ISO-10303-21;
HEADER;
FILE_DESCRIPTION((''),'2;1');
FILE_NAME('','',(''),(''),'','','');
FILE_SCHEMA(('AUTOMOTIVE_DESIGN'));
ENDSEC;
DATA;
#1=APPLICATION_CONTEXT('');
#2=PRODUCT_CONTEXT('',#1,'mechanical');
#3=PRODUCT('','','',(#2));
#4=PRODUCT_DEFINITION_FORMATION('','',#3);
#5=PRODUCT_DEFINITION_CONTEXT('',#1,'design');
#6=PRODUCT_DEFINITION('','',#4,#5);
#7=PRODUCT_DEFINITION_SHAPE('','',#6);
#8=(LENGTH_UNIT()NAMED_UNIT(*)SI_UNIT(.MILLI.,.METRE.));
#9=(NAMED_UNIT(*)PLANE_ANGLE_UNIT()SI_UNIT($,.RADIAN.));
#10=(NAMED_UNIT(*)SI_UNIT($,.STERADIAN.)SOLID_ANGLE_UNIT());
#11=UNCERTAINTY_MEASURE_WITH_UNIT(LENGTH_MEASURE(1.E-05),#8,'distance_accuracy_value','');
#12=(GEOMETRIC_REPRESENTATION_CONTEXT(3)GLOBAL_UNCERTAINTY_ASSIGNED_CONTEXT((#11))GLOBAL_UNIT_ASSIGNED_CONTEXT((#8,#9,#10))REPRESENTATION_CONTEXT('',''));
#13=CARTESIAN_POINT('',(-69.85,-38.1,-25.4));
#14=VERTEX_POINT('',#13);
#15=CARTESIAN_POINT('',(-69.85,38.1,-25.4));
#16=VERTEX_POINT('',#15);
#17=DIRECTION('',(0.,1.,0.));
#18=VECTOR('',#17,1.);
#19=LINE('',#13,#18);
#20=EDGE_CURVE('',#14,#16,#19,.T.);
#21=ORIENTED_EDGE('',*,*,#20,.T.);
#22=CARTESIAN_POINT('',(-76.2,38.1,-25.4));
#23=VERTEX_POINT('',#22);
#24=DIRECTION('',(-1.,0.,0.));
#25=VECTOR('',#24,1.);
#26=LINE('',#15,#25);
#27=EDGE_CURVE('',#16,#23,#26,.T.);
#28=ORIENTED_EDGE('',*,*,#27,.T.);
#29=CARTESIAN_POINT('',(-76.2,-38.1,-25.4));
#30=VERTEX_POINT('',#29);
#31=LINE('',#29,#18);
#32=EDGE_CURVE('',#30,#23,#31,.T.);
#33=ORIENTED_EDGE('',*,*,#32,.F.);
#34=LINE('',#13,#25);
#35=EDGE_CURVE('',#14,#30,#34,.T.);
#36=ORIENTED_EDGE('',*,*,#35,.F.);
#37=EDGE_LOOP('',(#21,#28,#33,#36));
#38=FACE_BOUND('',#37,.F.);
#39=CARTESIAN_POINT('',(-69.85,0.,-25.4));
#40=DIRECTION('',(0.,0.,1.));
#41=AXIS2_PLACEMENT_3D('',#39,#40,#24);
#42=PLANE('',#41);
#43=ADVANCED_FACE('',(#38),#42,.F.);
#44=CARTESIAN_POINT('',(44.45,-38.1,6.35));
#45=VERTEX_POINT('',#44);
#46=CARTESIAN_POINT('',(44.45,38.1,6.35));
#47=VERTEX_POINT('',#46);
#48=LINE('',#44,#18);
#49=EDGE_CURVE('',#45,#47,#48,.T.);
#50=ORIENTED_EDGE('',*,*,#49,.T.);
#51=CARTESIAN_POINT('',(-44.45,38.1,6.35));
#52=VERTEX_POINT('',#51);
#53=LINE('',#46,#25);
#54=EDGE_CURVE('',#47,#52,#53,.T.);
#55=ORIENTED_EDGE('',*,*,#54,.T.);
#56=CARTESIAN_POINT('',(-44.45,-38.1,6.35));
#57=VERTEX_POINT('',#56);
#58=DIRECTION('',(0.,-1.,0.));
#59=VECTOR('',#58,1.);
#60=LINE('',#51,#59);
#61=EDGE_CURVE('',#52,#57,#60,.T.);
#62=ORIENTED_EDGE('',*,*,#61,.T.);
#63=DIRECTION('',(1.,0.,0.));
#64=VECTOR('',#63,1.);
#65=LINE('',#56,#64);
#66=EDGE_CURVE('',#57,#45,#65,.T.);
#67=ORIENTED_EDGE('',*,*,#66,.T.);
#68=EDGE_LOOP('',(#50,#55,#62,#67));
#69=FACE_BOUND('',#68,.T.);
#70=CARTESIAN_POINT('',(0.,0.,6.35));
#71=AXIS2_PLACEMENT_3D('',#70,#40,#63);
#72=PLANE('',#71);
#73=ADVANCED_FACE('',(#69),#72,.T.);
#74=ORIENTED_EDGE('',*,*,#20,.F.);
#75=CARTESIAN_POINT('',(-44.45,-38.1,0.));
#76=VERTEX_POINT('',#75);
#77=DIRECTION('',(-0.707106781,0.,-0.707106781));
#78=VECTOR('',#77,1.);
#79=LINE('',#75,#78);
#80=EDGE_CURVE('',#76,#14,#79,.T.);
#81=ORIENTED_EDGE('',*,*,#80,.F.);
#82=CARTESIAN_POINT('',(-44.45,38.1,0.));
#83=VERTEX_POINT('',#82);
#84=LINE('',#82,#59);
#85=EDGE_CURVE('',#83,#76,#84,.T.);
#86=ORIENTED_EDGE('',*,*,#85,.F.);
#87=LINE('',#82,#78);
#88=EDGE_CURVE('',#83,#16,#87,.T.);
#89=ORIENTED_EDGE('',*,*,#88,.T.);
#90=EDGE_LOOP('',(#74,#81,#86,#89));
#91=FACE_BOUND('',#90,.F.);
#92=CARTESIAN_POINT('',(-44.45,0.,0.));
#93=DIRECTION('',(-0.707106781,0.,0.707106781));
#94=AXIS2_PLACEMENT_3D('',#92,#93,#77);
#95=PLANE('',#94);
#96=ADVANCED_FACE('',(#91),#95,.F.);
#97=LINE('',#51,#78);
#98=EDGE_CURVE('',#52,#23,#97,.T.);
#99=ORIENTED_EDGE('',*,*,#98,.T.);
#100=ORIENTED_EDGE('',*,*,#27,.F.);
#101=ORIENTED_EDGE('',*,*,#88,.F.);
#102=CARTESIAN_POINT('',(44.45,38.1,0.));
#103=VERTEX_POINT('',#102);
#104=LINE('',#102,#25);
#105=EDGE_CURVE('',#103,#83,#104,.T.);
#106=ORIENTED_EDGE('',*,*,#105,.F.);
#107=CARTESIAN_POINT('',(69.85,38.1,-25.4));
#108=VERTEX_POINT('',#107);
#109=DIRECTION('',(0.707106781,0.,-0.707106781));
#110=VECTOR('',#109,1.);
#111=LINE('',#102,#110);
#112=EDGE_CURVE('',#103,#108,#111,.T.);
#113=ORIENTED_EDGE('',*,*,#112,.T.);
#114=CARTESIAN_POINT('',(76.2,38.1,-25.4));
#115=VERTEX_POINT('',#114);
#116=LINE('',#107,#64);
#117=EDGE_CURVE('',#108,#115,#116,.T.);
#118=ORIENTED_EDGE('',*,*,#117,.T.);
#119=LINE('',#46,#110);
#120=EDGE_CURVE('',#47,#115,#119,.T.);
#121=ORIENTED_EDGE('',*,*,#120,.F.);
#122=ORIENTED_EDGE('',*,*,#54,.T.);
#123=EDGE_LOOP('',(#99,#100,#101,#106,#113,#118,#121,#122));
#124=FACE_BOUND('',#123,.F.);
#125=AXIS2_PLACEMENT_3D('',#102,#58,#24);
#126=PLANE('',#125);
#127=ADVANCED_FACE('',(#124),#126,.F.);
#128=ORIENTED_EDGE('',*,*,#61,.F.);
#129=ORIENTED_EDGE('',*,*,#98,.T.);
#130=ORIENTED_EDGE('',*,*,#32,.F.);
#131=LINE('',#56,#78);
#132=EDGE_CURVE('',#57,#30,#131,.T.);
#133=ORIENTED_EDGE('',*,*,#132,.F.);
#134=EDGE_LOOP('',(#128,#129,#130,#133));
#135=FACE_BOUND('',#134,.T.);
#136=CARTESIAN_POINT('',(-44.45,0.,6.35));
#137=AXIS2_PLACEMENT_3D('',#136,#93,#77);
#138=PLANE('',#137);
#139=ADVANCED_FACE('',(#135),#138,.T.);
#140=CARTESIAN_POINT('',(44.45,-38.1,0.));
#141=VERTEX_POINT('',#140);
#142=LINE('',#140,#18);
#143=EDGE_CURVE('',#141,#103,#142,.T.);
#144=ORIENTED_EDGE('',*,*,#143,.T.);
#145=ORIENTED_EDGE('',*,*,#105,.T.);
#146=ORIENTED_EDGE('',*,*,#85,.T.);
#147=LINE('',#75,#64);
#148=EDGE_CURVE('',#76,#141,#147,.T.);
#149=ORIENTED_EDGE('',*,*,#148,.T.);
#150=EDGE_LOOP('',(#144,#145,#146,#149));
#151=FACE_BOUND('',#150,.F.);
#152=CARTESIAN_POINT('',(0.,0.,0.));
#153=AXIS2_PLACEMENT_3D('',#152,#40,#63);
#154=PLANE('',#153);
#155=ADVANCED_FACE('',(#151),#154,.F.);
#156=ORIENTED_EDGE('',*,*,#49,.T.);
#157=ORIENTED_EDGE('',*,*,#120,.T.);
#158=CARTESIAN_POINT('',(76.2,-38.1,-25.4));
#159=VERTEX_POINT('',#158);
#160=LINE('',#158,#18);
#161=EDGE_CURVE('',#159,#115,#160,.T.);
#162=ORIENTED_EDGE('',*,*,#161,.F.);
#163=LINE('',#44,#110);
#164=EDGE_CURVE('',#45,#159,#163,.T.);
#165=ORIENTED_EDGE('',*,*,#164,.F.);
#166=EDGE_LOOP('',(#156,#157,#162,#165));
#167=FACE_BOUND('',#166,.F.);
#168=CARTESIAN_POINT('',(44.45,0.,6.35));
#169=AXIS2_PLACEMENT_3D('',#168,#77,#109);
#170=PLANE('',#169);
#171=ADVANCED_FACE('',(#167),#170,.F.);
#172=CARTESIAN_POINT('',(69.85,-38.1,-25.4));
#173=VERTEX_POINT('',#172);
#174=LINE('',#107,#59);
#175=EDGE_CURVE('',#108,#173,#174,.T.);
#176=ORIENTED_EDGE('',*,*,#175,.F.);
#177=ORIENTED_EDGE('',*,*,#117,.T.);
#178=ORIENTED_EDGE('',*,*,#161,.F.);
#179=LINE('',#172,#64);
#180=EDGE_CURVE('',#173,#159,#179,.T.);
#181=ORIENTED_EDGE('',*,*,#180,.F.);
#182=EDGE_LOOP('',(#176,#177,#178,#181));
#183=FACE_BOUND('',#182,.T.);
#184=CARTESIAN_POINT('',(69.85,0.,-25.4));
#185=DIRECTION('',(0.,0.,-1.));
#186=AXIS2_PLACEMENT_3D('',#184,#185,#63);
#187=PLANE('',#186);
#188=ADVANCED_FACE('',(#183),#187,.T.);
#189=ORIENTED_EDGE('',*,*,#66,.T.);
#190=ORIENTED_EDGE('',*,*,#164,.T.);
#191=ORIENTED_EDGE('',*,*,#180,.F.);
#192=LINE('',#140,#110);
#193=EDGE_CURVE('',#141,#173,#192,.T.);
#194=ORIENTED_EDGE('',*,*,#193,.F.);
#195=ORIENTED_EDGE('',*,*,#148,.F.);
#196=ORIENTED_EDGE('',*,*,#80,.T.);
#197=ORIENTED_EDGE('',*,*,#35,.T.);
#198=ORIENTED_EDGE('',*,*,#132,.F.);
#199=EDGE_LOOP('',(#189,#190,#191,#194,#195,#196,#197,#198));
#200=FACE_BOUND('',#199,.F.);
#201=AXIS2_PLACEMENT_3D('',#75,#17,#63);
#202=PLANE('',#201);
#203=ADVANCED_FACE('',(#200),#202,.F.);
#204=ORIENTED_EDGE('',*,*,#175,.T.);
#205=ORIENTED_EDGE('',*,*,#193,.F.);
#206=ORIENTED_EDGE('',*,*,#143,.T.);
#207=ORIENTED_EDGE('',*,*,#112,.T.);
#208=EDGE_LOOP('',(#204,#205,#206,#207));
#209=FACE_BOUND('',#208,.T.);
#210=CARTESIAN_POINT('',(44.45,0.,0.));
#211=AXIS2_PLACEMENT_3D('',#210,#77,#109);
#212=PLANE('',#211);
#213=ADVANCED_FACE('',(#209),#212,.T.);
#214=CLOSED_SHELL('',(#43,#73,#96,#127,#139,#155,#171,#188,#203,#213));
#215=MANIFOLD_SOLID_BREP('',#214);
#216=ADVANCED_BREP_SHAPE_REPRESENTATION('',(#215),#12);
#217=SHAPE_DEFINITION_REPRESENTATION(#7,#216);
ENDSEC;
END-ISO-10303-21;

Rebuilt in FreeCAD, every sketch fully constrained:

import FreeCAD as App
import Part
import Sketcher
from FreeCAD import Vector
Q = App.Units.Quantity

doc = App.newDocument("Part")
params = doc.addObject("Spreadsheet::Sheet", "Params")
for row, (alias, value) in enumerate([
    ("sketch1_height", "3 in"),
    ("sketch1_width", "3.5 in"),
    ("pad1_length", "0.25 in"),
    ("sketch2_width", "0.25 in"),
    ("pad2_length", "1.5 in"),
    ("pad2_length2", "1.5 in"),
], start=1):
    params.set(f"A{row}", alias)
    params.set(f"B{row}", "=" + value)
    params.setAlias(f"B{row}", alias)

body = doc.addObject("PartDesign::Body", "Body")

# Sketch on XY plane
sketch1 = body.newObject("Sketcher::SketchObject", "Sketch")
sketch1.AttachmentSupport = (doc.getObject("XY_Plane"), [""])
sketch1.MapMode = "FlatFace"
sketch1.addGeometry(Part.LineSegment(Vector(44.45, -38.1, 0), Vector(44.45, 38.1, 0)), False)
sketch1.addGeometry(Part.LineSegment(Vector(44.45, 38.1, 0), Vector(-44.45, 38.1, 0)), False)
sketch1.addGeometry(Part.LineSegment(Vector(-44.45, 38.1, 0), Vector(-44.45, -38.1, 0)), False)
sketch1.addGeometry(Part.LineSegment(Vector(-44.45, -38.1, 0), Vector(44.45, -38.1, 0)), False)
sketch1.addConstraint(Sketcher.Constraint("Coincident", 0, 2, 1, 1))
sketch1.addConstraint(Sketcher.Constraint("Coincident", 1, 2, 2, 1))
sketch1.addConstraint(Sketcher.Constraint("Coincident", 2, 2, 3, 1))
sketch1.addConstraint(Sketcher.Constraint("Coincident", 3, 2, 0, 1))
sketch1.addConstraint(Sketcher.Constraint("Vertical", 0))
sketch1.addConstraint(Sketcher.Constraint("Horizontal", 1))
sketch1.addConstraint(Sketcher.Constraint("Vertical", 2))
sketch1.addConstraint(Sketcher.Constraint("Horizontal", 3))
sketch1.addConstraint(Sketcher.Constraint("Symmetric", 0, 2, 2, 2, -1, 1))
sketch1.addConstraint(Sketcher.Constraint("DistanceY", 0, 1, 0, 2, Q("3 in")))
sketch1.addConstraint(Sketcher.Constraint("DistanceX", 1, 2, 1, 1, Q("3.5 in")))
sketch1.setExpression("Constraints[9]", "Params.sketch1_height")
sketch1.setExpression("Constraints[10]", "Params.sketch1_width")
pad1 = body.newObject("PartDesign::Pad", "Pad")
pad1.Profile = sketch1
pad1.setExpression("Length", "Params.pad1_length")

# Sketch on XZ plane
sketch2 = body.newObject("Sketcher::SketchObject", "Sketch001")
sketch2.AttachmentSupport = (doc.getObject("XZ_Plane"), [""])
sketch2.MapMode = "FlatFace"
sketch2.addGeometry(Part.LineSegment(Vector(44.45, 0, 0), Vector(44.45, 6.35, 0)), False)
sketch2.addGeometry(Part.LineSegment(Vector(44.45, 6.35, 0), Vector(76.2, -25.4, 0)), False)
sketch2.addGeometry(Part.LineSegment(Vector(76.2, -25.4, 0), Vector(69.85, -25.4, 0)), False)
sketch2.addGeometry(Part.LineSegment(Vector(69.85, -25.4, 0), Vector(44.45, 0, 0)), False)
sketch2.addGeometry(Part.LineSegment(Vector(-44.45, 0, 0), Vector(-69.85, -25.4, 0)), False)
sketch2.addGeometry(Part.LineSegment(Vector(-69.85, -25.4, 0), Vector(-76.2, -25.4, 0)), False)
sketch2.addGeometry(Part.LineSegment(Vector(-76.2, -25.4, 0), Vector(-44.45, 6.35, 0)), False)
sketch2.addGeometry(Part.LineSegment(Vector(-44.45, 6.35, 0), Vector(-44.45, 0, 0)), False)
sketch2.addConstraint(Sketcher.Constraint("Coincident", 0, 2, 1, 1))
sketch2.addConstraint(Sketcher.Constraint("Coincident", 1, 2, 2, 1))
sketch2.addConstraint(Sketcher.Constraint("Coincident", 2, 2, 3, 1))
sketch2.addConstraint(Sketcher.Constraint("Coincident", 3, 2, 0, 1))
sketch2.addConstraint(Sketcher.Constraint("Coincident", 4, 2, 5, 1))
sketch2.addConstraint(Sketcher.Constraint("Coincident", 5, 2, 6, 1))
sketch2.addConstraint(Sketcher.Constraint("Coincident", 6, 2, 7, 1))
sketch2.addConstraint(Sketcher.Constraint("Coincident", 7, 2, 4, 1))
sketch2.addConstraint(Sketcher.Constraint("Vertical", 0))
sketch2.addConstraint(Sketcher.Constraint("Horizontal", 2))
sketch2.addConstraint(Sketcher.Constraint("Horizontal", 5))
sketch2.addConstraint(Sketcher.Constraint("Vertical", 7))
sketch2.addConstraint(Sketcher.Constraint("Symmetric", 3, 2, 7, 2, -1, 1))
sketch2.addConstraint(Sketcher.Constraint("Symmetric", 2, 2, 4, 2, -2))
sketch2.addConstraint(Sketcher.Constraint("PointOnObject", 3, 2, -1))
sketch2.addConstraint(Sketcher.Constraint("Parallel", 1, 3))
sketch2.addConstraint(Sketcher.Constraint("Perpendicular", 3, 4))
sketch2.addConstraint(Sketcher.Constraint("Parallel", 4, 6))
sketch2.addConstraint(Sketcher.Constraint("Horizontal", 0, 2, 6, 2))
sketch2.addConstraint(Sketcher.Constraint("DistanceX", -1, 1, 1, 2, Q("3 in")))
sketch2.addConstraint(Sketcher.Constraint("DistanceY", 1, 2, -1, 1, Q("1 in")))
sketch2.addConstraint(Sketcher.Constraint("DistanceX", 2, 2, 2, 1, Q("0.25 in")))
sketch2.setExpression("Constraints[21]", "Params.sketch2_width")
pad2 = body.newObject("PartDesign::Pad", "Pad001")
pad2.Profile = sketch2
pad2.Type = "TwoLengths"
pad2.setExpression("Length", "Params.pad2_length")
pad2.setExpression("Length2", "Params.pad2_length2")
pad2.Reversed = True

doc.recompute()
